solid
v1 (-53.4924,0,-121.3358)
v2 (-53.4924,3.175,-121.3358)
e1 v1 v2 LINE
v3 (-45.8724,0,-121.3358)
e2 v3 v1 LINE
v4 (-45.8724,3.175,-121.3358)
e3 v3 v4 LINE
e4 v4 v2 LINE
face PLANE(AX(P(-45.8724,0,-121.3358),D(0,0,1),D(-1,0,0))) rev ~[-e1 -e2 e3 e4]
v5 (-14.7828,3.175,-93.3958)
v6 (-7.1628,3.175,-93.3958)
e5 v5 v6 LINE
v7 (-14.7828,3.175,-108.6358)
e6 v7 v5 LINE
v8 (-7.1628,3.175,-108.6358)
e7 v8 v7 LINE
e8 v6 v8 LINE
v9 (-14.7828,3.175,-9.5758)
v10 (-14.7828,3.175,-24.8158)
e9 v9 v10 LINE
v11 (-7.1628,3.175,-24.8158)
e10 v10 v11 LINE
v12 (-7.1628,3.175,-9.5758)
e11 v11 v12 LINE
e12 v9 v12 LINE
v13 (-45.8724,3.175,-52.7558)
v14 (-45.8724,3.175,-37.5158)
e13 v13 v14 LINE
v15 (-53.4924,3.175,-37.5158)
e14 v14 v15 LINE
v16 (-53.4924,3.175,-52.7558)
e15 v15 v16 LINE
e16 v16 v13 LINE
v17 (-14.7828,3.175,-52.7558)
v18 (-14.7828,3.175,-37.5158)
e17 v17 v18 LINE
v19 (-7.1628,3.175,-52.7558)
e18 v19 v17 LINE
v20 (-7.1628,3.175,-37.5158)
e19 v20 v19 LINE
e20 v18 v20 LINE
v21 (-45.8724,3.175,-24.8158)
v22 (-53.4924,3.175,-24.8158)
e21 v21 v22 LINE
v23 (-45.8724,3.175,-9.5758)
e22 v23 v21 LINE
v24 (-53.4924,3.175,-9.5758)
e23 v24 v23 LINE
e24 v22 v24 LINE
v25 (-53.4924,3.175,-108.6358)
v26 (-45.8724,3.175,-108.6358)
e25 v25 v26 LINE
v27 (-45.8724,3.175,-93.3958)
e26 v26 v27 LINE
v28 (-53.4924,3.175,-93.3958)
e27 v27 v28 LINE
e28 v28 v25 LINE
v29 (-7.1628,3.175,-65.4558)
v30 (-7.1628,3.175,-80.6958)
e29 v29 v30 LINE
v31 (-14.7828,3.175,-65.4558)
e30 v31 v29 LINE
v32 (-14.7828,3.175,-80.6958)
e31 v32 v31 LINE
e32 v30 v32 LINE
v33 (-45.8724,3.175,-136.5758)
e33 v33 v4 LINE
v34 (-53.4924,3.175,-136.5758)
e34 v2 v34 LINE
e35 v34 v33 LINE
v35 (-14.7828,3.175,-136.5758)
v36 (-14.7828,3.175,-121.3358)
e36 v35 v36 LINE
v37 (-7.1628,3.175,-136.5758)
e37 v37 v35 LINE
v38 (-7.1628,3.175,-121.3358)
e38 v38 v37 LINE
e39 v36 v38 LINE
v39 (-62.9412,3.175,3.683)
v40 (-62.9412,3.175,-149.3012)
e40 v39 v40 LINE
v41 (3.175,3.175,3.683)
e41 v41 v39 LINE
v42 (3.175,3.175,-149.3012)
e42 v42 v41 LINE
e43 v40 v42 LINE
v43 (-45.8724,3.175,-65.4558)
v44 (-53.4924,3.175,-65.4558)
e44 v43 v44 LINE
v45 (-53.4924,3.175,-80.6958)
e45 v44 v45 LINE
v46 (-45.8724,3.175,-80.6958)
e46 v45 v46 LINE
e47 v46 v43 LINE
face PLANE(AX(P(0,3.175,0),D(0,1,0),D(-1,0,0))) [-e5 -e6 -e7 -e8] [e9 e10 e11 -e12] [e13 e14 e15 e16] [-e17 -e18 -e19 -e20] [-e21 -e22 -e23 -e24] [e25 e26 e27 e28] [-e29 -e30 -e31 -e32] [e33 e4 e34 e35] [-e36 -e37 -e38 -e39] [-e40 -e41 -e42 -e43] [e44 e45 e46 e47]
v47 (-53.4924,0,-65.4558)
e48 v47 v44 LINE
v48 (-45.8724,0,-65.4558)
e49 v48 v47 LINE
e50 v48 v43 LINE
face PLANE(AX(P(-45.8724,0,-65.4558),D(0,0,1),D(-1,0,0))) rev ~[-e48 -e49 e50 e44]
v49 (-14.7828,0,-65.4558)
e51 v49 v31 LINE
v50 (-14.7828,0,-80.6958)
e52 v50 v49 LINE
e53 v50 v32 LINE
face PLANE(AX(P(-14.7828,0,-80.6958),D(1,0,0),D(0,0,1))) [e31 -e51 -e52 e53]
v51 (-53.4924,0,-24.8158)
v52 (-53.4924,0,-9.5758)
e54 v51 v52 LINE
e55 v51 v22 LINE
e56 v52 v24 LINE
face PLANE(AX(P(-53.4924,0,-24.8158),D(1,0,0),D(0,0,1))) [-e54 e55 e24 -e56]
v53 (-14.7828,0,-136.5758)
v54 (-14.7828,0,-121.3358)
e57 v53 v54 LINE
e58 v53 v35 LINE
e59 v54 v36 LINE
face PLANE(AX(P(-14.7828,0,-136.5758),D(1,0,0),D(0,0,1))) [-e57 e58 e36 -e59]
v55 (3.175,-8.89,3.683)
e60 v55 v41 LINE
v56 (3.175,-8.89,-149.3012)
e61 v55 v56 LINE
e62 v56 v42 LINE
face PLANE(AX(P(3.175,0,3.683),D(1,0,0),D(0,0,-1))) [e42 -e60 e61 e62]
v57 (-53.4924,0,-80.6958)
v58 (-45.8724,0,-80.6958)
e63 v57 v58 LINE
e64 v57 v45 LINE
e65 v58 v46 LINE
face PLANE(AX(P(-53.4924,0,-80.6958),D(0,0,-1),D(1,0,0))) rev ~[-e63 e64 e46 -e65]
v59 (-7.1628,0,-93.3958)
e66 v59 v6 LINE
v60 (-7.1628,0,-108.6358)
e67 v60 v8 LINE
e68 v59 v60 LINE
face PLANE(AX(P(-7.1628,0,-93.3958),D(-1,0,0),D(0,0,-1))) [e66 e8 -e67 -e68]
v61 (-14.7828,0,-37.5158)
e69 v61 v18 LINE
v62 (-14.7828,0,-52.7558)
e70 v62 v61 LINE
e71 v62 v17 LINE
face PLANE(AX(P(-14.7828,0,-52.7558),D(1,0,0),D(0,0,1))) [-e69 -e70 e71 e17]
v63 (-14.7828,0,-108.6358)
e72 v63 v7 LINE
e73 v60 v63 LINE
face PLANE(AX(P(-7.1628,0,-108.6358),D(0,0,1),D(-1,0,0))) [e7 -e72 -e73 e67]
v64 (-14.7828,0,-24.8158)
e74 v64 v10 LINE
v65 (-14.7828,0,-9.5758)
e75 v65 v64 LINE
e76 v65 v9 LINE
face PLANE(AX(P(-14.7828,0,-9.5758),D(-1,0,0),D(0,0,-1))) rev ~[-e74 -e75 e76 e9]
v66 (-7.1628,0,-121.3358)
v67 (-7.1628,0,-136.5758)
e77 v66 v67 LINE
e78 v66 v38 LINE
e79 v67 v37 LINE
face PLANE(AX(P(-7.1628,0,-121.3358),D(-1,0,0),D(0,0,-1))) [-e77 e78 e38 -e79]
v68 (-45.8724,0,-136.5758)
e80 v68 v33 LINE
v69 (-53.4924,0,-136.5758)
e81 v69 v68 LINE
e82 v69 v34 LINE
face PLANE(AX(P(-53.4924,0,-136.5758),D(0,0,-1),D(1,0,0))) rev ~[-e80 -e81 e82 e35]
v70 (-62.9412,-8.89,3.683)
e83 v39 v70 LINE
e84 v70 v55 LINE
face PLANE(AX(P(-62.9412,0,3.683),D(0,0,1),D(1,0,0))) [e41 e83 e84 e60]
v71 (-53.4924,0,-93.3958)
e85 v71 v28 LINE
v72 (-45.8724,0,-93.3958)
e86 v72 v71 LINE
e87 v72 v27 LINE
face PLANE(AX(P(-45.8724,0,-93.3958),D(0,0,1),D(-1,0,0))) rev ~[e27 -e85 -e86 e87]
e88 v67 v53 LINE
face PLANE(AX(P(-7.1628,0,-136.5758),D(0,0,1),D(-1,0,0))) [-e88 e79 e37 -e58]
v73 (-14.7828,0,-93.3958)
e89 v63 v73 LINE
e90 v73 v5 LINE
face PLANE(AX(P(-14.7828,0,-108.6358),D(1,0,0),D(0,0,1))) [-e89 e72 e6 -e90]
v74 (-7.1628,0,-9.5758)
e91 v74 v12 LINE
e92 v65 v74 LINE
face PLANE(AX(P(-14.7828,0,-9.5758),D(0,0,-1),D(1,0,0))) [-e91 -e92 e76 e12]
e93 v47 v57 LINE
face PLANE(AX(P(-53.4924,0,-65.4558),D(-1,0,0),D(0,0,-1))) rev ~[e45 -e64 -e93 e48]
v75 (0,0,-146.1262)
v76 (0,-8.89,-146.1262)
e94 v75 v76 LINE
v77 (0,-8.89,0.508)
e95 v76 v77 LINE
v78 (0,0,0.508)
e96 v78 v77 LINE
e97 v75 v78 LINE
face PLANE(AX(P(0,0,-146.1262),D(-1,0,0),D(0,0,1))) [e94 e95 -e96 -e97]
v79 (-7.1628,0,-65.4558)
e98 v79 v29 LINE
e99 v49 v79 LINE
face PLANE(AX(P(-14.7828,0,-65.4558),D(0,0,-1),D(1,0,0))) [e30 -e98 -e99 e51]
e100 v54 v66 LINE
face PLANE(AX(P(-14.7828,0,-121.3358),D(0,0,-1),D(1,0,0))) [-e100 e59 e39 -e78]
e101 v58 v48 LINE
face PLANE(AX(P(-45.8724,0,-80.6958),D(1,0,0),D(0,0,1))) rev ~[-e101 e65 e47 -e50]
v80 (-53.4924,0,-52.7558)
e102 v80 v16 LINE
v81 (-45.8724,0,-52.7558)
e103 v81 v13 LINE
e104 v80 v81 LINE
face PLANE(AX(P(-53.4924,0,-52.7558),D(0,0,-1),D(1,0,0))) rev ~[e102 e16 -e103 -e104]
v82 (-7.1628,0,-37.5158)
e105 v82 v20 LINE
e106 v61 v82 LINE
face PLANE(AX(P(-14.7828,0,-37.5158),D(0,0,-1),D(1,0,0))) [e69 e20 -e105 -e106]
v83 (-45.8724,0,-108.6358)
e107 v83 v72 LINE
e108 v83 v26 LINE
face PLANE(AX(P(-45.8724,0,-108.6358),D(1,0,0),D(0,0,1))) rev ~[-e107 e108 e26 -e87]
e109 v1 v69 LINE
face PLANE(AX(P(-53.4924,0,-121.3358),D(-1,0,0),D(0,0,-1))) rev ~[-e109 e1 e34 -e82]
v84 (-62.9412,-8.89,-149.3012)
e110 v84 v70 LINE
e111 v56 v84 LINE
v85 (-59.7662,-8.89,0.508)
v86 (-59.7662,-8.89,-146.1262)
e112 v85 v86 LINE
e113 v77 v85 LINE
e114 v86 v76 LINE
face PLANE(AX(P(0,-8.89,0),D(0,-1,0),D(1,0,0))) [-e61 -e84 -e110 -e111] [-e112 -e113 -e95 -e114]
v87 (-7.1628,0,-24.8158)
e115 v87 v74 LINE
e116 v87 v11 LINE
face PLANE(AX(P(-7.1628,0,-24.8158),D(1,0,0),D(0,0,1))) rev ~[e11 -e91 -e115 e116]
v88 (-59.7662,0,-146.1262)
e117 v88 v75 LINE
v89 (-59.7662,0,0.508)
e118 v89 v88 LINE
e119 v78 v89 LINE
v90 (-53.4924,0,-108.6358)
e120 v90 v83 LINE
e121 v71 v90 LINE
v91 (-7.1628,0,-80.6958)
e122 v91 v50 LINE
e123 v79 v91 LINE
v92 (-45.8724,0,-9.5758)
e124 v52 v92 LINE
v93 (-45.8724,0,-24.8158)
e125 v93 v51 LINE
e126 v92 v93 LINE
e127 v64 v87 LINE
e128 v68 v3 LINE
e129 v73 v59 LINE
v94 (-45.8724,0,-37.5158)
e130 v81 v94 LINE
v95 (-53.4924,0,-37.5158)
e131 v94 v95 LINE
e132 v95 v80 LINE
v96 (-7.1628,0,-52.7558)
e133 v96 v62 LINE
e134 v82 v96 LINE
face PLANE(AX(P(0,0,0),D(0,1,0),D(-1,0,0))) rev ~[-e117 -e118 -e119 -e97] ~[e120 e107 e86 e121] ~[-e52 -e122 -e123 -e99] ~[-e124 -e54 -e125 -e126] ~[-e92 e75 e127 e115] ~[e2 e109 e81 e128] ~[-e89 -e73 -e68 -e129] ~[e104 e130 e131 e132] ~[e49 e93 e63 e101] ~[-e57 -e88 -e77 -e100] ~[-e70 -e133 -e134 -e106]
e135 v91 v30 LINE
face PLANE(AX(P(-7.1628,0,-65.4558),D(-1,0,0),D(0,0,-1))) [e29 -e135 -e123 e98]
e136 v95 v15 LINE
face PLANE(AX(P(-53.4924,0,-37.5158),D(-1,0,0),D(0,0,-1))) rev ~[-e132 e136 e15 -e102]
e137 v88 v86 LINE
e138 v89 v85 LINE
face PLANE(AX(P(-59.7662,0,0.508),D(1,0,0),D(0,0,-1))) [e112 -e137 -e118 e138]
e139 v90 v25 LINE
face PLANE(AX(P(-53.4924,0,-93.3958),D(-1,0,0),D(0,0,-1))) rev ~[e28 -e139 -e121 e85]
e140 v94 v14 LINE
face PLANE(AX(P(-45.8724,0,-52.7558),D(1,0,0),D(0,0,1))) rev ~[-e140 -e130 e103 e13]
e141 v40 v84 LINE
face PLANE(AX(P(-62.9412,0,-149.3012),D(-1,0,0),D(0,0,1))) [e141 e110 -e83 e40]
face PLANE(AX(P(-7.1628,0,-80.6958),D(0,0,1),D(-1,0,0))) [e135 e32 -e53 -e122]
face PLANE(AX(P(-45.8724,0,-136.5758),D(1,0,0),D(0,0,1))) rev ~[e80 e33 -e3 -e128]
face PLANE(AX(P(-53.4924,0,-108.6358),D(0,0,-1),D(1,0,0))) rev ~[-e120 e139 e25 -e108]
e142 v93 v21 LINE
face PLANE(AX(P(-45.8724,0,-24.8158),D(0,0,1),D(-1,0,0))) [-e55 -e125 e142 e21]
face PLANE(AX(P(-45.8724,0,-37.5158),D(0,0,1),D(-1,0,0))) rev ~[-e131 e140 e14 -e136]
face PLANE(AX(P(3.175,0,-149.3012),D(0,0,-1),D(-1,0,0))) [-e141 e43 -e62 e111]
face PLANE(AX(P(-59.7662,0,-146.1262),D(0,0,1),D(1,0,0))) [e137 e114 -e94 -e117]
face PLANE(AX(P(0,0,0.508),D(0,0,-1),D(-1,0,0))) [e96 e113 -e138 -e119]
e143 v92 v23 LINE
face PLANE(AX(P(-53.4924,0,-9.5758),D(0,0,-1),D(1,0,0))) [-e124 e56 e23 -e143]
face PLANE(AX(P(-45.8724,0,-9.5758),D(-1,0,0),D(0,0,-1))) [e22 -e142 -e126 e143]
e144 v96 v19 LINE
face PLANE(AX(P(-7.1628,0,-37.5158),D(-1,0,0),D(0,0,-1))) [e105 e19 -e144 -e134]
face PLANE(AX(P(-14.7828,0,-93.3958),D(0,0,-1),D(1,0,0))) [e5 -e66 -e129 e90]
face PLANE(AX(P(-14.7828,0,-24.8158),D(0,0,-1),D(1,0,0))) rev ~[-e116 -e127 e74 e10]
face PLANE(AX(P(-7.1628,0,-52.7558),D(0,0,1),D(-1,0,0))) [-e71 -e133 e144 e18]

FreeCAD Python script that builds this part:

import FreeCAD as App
import Part
import Sketcher
Q = App.Units.Quantity


def add_polygon(sketch, points):
    """Adds a closed chain of lines whose ends are joined by coincident constraints."""
    first, n = sketch.GeometryCount, len(points)
    for a, b in zip(points, points[1:] + points[:1]):
        sketch.addGeometry(Part.LineSegment(App.Vector(*a, 0), App.Vector(*b, 0)), False)
    for i in range(n):
        sketch.addConstraint(Sketcher.Constraint("Coincident", first + i, 2, first + (i + 1) % n, 1))

doc = App.newDocument("Part")
body = doc.addObject("PartDesign::Body", "Body")

# Sketch on XZ plane
sketch1 = body.newObject("Sketcher::SketchObject", "Sketch")
sketch1.AttachmentSupport = (doc.getObject("XZ_Plane"), [""])
sketch1.MapMode = "FlatFace"
add_polygon(sketch1, [(3, 4), (3, -149), (-63, -149), (-63, 4)])  # lines 0-3
add_polygon(sketch1, [(-7, -10), (-15, -10), (-15, -25), (-7, -25)])  # lines 4-7
add_polygon(sketch1, [(-46, -10), (-53, -10), (-53, -25), (-46, -25)])  # lines 8-11
add_polygon(sketch1, [(-53, -53), (-46, -53), (-46, -38), (-53, -38)])  # lines 12-15
add_polygon(sketch1, [(-7, -121), (-15, -121), (-15, -137), (-7, -137)])  # lines 16-19
add_polygon(sketch1, [(-7, -93), (-15, -93), (-15, -109), (-7, -109)])  # lines 20-23
add_polygon(sketch1, [(-7, -65), (-15, -65), (-15, -81), (-7, -81)])  # lines 24-27
add_polygon(sketch1, [(-46, -137), (-46, -121), (-53, -121), (-53, -137)])  # lines 28-31
add_polygon(sketch1, [(-46, -109), (-46, -93), (-53, -93), (-53, -109)])  # lines 32-35
add_polygon(sketch1, [(-46, -81), (-46, -65), (-53, -65), (-53, -81)])  # lines 36-39
add_polygon(sketch1, [(-7, -38), (-15, -38), (-15, -53), (-7, -53)])  # lines 40-43
sketch1.addConstraint([
    Sketcher.Constraint("Vertical", 0),
    Sketcher.Constraint("Horizontal", 1),
    Sketcher.Constraint("Vertical", 2),
    Sketcher.Constraint("Horizontal", 3),
    Sketcher.Constraint("Horizontal", 4),
    Sketcher.Constraint("Vertical", 5),
    Sketcher.Constraint("Horizontal", 6),
    Sketcher.Constraint("Vertical", 7),
    Sketcher.Constraint("Horizontal", 8),
    Sketcher.Constraint("Vertical", 9),
    Sketcher.Constraint("Horizontal", 10),
    Sketcher.Constraint("Vertical", 11),
    Sketcher.Constraint("Horizontal", 12),
    Sketcher.Constraint("Vertical", 13),
    Sketcher.Constraint("Horizontal", 14),
    Sketcher.Constraint("Vertical", 15),
    Sketcher.Constraint("Horizontal", 16),
    Sketcher.Constraint("Vertical", 17),
    Sketcher.Constraint("Horizontal", 18),
    Sketcher.Constraint("Vertical", 19),
    Sketcher.Constraint("Horizontal", 20),
    Sketcher.Constraint("Vertical", 21),
    Sketcher.Constraint("Horizontal", 22),
    Sketcher.Constraint("Vertical", 23),
    Sketcher.Constraint("Horizontal", 24),
    Sketcher.Constraint("Vertical", 25),
    Sketcher.Constraint("Horizontal", 26),
    Sketcher.Constraint("Vertical", 27),
    Sketcher.Constraint("Vertical", 28),
    Sketcher.Constraint("Horizontal", 29),
    Sketcher.Constraint("Vertical", 30),
    Sketcher.Constraint("Horizontal", 31),
    Sketcher.Constraint("Vertical", 32),
    Sketcher.Constraint("Horizontal", 33),
    Sketcher.Constraint("Vertical", 34),
    Sketcher.Constraint("Horizontal", 35),
    Sketcher.Constraint("Vertical", 36),
    Sketcher.Constraint("Horizontal", 37),
    Sketcher.Constraint("Vertical", 38),
    Sketcher.Constraint("Horizontal", 39),
    Sketcher.Constraint("Horizontal", 40),
    Sketcher.Constraint("Vertical", 41),
    Sketcher.Constraint("Horizontal", 42),
    Sketcher.Constraint("Vertical", 43),
    Sketcher.Constraint("Horizontal", 7, 2, 8, 2),
    Sketcher.Constraint("Horizontal", 6, 2, 9, 2),
    Sketcher.Constraint("Horizontal", 19, 2, 28, 2),
    Sketcher.Constraint("Horizontal", 18, 2, 30, 2),
    Sketcher.Constraint("Horizontal", 23, 2, 32, 2),
    Sketcher.Constraint("Horizontal", 22, 2, 34, 2),
    Sketcher.Constraint("Horizontal", 27, 2, 36, 2),
    Sketcher.Constraint("Horizontal", 26, 2, 38, 2),
    Sketcher.Constraint("Horizontal", 14, 2, 40, 2),
    Sketcher.Constraint("Horizontal", 15, 2, 41, 2),
    Sketcher.Constraint("Vertical", 11, 2, 12, 2),
    Sketcher.Constraint("Vertical", 9, 2, 14, 2),
    Sketcher.Constraint("Vertical", 5, 2, 16, 2),
    Sketcher.Constraint("Vertical", 7, 2, 18, 2),
    Sketcher.Constraint("Vertical", 17, 2, 20, 2),
    Sketcher.Constraint("Vertical", 19, 2, 22, 2),
    Sketcher.Constraint("Vertical", 21, 2, 24, 2),
    Sketcher.Constraint("Vertical", 23, 2, 26, 2),
    Sketcher.Constraint("Vertical", 13, 2, 28, 2),
    Sketcher.Constraint("Vertical", 15, 2, 29, 2),
    Sketcher.Constraint("Vertical", 31, 2, 32, 2),
    Sketcher.Constraint("Vertical", 30, 2, 33, 2),
    Sketcher.Constraint("Vertical", 35, 2, 36, 2),
    Sketcher.Constraint("Vertical", 34, 2, 37, 2),
    Sketcher.Constraint("Vertical", 25, 2, 40, 2),
    Sketcher.Constraint("Vertical", 27, 2, 42, 2),
    Sketcher.Constraint("Equal", 6, 8),
    Sketcher.Constraint("Equal", 11, 13),
    Sketcher.Constraint("Equal", 15, 17),
    Sketcher.Constraint("Equal", 19, 21),
    Sketcher.Constraint("Equal", 23, 25),
    Sketcher.Constraint("DistanceX", 4, 2, 4, 1, Q("0.3 in")),
    Sketcher.Constraint("DistanceY", 5, 2, 5, 1, Q("0.6 in")),
    Sketcher.Constraint("DistanceY", 13, 2, 10, 2, Q("0.5 in")),
    Sketcher.Constraint("DistanceY", 16, 2, 21, 2, Q("0.5 in")),
    Sketcher.Constraint("DistanceY", 24, 2, 12, 2, Q("0.5 in")),
    Sketcher.Constraint("DistanceY", 20, 2, 25, 2, Q("0.5 in")),
    Sketcher.Constraint("DistanceX", -1, 1, 0, 2, Q("0.125 in")),
    Sketcher.Constraint("DistanceY", 4, 2, -1, 1, Q("0.377 in")),
    Sketcher.Constraint("DistanceX", 6, 2, -1, 1, Q("0.282 in")),
    Sketcher.Constraint("DistanceX", 1, 2, 1, 1, Q("2.603 in")),
    Sketcher.Constraint("DistanceY", 0, 2, 0, 1, Q("6.023 in")),
    Sketcher.Constraint("DistanceY", 0, 2, -1, 1, Q("5.878 in")),
    Sketcher.Constraint("DistanceX", 8, 2, -1, 1, Q("2.106 in")),
])
pad1 = body.newObject("PartDesign::Pad", "Pad")
pad1.Profile = sketch1
pad1.Length = Q("0.125 in")
pad1.Reversed = True

# Sketch on XZ plane
sketch2 = body.newObject("Sketcher::SketchObject", "Sketch001")
sketch2.AttachmentSupport = (doc.getObject("XZ_Plane"), [""])
sketch2.MapMode = "FlatFace"
add_polygon(sketch2, [(3, 4), (-63, 4), (-63, -149), (3, -149)])  # lines 0-3
add_polygon(sketch2, [(-60, 1), (0, 1), (0, -146), (-60, -146)])  # lines 4-7
sketch2.addConstraint([
    Sketcher.Constraint("Horizontal", 0),
    Sketcher.Constraint("Vertical", 1),
    Sketcher.Constraint("Horizontal", 2),
    Sketcher.Constraint("Vertical", 3),
    Sketcher.Constraint("Horizontal", 4),
    Sketcher.Constraint("Vertical", 5),
    Sketcher.Constraint("Horizontal", 6),
    Sketcher.Constraint("Vertical", 7),
    Sketcher.Constraint("PointOnObject", 4, 2, -2),
    Sketcher.Constraint("DistanceX", -1, 1, 2, 2, Q("0.125 in")),
    Sketcher.Constraint("DistanceY", 4, 2, 3, 2, Q("0.125 in")),
    Sketcher.Constraint("DistanceY", 2, 2, 5, 2, Q("0.125 in")),
    Sketcher.Constraint("DistanceX", 1, 2, 6, 2, Q("0.125 in")),
    Sketcher.Constraint("DistanceX", 0, 2, 0, 1, Q("2.603 in")),
    Sketcher.Constraint("DistanceY", 1, 2, 1, 1, Q("6.023 in")),
    Sketcher.Constraint("DistanceY", -1, 1, 4, 2, Q("0.02 in")),
])
pad2 = body.newObject("PartDesign::Pad", "Pad001")
pad2.Profile = sketch2
pad2.Length = Q("0.35 in")

doc.recompute()
